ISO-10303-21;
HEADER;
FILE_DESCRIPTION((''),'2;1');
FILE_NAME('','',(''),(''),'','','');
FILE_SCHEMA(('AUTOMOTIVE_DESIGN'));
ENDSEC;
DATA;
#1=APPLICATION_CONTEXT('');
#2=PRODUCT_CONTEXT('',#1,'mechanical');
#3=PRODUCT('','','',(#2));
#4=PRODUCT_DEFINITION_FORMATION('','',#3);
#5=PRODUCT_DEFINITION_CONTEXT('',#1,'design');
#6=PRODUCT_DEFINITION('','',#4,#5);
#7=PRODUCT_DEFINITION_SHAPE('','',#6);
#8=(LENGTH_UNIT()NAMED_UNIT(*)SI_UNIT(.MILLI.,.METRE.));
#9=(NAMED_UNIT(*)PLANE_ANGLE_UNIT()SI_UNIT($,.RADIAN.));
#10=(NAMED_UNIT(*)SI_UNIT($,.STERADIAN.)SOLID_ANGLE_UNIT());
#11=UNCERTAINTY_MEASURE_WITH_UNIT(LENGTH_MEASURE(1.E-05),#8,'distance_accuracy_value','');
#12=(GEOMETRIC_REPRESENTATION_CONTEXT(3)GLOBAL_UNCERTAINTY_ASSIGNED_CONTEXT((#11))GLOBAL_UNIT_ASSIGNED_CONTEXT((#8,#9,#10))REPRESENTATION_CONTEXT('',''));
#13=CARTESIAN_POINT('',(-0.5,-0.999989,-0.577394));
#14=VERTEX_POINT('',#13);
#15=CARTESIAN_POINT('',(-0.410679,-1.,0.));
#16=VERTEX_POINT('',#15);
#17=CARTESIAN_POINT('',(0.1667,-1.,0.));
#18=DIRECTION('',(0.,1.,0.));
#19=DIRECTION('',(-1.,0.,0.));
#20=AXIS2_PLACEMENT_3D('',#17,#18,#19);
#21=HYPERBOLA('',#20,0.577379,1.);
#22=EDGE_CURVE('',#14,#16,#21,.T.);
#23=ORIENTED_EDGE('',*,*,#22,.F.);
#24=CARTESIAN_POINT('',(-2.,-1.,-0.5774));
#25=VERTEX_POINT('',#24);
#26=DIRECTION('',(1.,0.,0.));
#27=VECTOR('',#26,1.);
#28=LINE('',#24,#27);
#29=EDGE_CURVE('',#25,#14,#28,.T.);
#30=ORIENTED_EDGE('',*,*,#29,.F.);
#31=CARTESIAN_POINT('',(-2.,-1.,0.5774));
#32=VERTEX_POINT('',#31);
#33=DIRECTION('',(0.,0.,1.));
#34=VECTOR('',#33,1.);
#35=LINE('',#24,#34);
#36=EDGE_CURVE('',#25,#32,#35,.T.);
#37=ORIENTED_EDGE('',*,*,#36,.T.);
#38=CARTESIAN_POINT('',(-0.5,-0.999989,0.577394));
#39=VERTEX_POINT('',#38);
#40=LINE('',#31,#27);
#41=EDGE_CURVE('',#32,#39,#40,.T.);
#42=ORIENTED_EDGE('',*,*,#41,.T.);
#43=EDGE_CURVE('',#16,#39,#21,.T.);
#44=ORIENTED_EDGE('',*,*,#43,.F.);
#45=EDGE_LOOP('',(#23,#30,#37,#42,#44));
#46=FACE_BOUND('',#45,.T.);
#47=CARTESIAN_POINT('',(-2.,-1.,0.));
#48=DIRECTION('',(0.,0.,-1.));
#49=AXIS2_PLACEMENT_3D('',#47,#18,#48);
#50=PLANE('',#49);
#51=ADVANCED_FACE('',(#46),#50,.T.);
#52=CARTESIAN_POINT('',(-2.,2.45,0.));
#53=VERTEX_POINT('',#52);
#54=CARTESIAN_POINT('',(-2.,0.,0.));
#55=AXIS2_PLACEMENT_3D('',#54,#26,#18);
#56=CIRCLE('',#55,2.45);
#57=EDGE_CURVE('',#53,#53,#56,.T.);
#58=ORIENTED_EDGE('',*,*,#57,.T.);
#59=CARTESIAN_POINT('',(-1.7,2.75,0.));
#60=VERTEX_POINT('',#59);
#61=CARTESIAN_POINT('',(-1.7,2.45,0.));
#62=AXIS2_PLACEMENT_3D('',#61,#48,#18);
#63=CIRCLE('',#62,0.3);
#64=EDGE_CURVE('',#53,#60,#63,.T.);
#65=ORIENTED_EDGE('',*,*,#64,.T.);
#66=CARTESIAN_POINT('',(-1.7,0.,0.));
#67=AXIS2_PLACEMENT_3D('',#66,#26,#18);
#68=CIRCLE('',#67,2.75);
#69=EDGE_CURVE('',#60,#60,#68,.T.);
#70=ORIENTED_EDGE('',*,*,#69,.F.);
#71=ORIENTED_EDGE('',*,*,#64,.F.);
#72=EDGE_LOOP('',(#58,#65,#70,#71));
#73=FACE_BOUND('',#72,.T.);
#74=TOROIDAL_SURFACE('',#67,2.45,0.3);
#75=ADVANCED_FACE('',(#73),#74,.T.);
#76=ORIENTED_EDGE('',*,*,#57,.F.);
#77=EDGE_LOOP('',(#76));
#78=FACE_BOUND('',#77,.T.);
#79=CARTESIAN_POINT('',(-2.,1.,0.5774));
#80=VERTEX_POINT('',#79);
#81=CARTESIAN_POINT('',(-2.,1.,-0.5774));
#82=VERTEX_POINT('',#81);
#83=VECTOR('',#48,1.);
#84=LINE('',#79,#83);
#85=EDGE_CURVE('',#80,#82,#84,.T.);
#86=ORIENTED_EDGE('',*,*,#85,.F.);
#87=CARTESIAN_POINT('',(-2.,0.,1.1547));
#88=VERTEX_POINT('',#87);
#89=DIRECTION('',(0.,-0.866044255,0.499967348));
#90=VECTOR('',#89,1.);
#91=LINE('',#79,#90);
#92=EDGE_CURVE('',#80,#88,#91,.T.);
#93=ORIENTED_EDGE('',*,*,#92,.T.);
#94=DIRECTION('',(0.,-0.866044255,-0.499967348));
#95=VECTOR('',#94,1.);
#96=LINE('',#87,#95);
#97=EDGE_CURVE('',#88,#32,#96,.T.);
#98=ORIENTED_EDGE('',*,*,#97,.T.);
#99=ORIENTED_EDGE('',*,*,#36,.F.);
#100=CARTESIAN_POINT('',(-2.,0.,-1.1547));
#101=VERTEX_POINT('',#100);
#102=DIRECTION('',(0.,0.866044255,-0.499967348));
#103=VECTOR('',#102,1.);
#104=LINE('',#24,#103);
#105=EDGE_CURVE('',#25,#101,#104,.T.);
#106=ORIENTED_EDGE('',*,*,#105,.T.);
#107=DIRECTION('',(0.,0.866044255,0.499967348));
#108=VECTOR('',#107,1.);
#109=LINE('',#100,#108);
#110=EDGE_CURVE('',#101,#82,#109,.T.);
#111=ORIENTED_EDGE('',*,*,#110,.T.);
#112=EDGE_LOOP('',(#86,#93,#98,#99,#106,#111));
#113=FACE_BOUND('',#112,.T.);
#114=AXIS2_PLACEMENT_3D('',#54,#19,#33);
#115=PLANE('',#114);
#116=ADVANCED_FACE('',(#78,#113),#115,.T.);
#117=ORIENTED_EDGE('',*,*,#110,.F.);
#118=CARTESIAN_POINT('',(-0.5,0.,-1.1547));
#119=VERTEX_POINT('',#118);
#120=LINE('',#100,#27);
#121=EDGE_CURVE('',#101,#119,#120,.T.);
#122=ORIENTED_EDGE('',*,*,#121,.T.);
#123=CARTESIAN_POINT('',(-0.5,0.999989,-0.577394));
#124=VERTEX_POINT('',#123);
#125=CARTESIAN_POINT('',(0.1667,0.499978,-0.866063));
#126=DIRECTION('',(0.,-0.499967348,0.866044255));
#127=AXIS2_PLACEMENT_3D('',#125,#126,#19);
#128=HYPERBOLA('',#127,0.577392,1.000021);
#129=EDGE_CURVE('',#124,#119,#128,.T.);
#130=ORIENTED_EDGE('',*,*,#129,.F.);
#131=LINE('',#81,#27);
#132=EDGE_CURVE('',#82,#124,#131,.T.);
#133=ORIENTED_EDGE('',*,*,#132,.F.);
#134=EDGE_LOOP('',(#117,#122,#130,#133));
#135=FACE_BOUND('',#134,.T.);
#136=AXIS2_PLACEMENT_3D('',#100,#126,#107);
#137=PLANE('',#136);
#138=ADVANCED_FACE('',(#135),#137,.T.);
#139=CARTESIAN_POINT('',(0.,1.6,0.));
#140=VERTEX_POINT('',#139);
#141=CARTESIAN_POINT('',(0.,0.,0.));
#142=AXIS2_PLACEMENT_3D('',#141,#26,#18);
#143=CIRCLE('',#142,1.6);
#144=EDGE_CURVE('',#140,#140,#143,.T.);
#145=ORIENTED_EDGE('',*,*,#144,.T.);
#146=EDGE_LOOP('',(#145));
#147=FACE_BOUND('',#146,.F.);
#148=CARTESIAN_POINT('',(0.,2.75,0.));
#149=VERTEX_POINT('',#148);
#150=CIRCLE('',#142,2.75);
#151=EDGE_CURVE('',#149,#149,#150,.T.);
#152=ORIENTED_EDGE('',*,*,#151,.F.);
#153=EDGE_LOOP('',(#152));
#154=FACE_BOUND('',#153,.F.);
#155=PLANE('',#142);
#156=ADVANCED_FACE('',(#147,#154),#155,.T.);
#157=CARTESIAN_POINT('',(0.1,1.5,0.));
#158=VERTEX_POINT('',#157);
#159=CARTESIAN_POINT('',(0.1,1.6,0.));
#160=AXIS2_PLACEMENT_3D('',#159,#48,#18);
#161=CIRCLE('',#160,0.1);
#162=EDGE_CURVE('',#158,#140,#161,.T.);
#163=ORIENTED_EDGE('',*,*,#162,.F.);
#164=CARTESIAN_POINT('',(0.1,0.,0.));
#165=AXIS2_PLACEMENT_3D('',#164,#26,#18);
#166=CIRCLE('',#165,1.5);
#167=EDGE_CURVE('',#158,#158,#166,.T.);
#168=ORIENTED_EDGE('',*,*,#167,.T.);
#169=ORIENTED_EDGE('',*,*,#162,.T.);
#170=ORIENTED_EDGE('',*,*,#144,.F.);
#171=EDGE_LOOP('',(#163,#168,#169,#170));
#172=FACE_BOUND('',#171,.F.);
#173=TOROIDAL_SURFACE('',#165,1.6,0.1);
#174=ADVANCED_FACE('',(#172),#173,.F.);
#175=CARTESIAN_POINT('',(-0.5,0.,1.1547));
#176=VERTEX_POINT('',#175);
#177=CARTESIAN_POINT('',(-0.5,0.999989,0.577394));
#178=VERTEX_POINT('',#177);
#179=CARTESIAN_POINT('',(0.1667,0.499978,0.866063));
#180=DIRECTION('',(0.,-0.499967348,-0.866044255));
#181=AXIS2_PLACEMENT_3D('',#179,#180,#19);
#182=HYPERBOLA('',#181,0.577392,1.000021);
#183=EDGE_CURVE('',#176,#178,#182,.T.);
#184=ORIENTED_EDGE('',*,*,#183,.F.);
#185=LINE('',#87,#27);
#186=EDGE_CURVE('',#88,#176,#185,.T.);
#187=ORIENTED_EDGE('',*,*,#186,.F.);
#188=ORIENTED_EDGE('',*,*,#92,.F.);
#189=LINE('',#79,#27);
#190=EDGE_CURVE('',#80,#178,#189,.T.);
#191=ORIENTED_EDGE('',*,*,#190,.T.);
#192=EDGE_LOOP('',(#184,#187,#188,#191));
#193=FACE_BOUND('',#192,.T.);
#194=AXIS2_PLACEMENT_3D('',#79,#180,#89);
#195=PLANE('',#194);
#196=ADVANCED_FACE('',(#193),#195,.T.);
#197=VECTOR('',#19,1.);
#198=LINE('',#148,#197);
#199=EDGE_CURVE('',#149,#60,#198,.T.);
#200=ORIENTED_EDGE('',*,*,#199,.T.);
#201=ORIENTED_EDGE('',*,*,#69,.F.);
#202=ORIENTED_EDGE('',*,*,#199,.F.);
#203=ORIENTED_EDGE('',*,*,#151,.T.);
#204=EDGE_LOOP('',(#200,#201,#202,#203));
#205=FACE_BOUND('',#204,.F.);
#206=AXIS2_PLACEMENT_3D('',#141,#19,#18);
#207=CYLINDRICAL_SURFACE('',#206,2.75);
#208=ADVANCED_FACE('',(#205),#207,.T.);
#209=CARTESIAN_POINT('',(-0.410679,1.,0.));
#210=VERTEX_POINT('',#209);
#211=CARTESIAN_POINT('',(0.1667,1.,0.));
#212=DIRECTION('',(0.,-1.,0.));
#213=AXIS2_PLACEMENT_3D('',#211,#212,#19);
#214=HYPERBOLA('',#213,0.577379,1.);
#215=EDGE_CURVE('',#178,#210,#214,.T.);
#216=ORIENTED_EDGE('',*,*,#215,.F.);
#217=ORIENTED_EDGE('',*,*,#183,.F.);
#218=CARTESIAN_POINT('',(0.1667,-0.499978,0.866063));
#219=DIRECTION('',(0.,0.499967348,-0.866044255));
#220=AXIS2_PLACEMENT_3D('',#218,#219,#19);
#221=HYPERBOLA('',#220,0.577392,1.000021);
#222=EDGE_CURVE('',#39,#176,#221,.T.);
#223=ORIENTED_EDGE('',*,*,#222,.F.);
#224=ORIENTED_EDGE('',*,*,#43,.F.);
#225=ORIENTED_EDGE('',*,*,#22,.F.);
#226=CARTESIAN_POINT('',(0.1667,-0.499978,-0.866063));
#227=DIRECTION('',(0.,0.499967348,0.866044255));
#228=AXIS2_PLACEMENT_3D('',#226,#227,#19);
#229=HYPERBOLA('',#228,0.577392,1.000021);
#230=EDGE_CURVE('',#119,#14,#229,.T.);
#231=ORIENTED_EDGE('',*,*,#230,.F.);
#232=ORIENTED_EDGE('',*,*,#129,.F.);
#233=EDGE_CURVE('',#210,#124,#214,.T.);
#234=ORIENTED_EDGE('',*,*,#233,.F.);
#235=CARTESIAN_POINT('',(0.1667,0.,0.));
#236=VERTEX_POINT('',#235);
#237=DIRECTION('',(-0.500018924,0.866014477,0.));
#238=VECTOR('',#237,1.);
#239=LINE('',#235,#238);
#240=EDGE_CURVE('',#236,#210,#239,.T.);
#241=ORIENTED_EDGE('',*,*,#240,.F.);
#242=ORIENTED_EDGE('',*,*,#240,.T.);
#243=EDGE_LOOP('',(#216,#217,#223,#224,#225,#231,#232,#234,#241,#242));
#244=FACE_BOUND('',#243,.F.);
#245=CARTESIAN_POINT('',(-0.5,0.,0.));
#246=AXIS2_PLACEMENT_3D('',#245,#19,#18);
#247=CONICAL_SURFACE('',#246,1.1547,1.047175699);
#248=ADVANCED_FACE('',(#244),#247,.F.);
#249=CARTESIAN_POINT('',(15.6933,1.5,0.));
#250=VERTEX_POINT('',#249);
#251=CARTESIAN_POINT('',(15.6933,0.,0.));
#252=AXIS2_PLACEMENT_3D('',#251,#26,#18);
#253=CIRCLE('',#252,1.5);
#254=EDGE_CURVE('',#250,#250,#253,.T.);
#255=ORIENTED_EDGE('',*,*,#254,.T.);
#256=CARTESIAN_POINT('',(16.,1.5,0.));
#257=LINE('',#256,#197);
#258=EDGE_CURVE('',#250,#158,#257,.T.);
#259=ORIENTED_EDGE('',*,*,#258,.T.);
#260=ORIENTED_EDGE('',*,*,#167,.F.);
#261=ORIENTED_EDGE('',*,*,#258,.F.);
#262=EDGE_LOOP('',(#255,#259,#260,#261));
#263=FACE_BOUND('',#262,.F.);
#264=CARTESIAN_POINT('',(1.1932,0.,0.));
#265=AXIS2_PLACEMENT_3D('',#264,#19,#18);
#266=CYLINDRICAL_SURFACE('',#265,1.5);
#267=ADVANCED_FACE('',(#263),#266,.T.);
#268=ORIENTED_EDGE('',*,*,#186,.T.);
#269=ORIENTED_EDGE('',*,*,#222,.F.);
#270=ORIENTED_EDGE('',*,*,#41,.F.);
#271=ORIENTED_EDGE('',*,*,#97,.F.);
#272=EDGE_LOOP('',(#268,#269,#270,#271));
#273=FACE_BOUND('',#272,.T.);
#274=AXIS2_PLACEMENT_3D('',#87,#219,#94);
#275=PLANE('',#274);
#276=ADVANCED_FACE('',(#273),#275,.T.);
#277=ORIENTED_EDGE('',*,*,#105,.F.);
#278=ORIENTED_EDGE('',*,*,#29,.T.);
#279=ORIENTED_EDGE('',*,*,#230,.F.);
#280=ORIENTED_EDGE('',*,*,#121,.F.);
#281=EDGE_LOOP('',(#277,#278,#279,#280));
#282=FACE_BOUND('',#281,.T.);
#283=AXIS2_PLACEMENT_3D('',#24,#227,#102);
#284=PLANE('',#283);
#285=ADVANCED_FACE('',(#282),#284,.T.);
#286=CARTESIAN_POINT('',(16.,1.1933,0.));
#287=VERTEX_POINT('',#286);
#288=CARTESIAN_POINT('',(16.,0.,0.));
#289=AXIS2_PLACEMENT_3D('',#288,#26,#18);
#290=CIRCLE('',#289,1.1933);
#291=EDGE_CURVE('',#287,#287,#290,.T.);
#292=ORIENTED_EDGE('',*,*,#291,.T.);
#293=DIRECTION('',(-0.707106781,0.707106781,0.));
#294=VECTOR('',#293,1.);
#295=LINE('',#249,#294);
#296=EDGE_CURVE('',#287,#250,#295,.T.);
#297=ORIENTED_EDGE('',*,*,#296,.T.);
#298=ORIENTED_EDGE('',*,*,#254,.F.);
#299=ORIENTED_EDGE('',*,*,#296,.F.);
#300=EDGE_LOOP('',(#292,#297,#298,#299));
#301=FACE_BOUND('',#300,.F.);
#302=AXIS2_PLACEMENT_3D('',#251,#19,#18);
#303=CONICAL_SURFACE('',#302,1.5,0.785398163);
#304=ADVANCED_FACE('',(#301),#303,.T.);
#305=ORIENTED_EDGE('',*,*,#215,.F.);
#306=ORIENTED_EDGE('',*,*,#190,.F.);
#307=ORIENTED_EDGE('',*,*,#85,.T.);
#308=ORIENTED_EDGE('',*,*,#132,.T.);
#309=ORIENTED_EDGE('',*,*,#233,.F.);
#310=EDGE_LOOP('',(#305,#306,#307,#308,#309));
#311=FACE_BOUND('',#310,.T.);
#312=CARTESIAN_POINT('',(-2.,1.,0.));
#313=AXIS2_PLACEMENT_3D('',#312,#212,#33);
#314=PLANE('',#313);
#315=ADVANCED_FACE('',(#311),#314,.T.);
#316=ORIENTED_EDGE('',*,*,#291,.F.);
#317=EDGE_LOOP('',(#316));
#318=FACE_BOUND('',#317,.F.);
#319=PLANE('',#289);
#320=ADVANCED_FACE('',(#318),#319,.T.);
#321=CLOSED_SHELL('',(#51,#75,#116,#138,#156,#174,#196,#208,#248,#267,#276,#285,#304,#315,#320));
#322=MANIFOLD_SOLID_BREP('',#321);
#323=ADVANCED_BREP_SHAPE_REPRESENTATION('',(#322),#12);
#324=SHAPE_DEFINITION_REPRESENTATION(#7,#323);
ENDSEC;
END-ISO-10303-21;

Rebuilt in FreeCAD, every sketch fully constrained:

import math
import FreeCAD as App
import Part
import Sketcher
from FreeCAD import Vector
Q = App.Units.Quantity


def edges_at(feature, points):
    """Names of the edges that pass closest to the given points."""
    edges = feature.Shape.Edges
    near = lambda p: min(range(len(edges)), key=lambda i: edges[i].distToShape(Part.Vertex(*p))[0])
    return sorted({f"Edge{near(p) + 1}" for p in points})

doc = App.newDocument("Part")
body = doc.addObject("PartDesign::Body", "Body")

sketch1 = doc.addObject("Sketcher::SketchObject", "Sketch")
body.addObject(sketch1)
sketch1.AttachmentSupport = (doc.XY_Plane, [""])
sketch1.MapMode = "FlatFace"
sketch1.addGeometry([
    Part.LineSegment(Vector(0.2, 0, 0), Vector(16, 0, 0)),
    Part.LineSegment(Vector(16, 0, 0), Vector(16, 1.5, 0)),
    Part.LineSegment(Vector(16, 1.5, 0), Vector(0, 1.5, 0)),
    Part.LineSegment(Vector(0, 1.5, 0), Vector(0, 2.8, 0)),
    Part.LineSegment(Vector(0, 2.8, 0), Vector(-2, 2.8, 0)),
    Part.LineSegment(Vector(-2, 2.8, 0), Vector(-2, 1.2, 0)),
    Part.LineSegment(Vector(-2, 1.2, 0), Vector(-0.5, 1.2, 0)),
    Part.LineSegment(Vector(-0.5, 1.2, 0), Vector(0.2, 0, 0)),
], False)
sketch1.addConstraint([
    Sketcher.Constraint("Coincident", 0, 2, 1, 1),
    Sketcher.Constraint("Coincident", 1, 2, 2, 1),
    Sketcher.Constraint("Coincident", 2, 2, 3, 1),
    Sketcher.Constraint("Coincident", 3, 2, 4, 1),
    Sketcher.Constraint("Coincident", 4, 2, 5, 1),
    Sketcher.Constraint("Coincident", 5, 2, 6, 1),
    Sketcher.Constraint("Coincident", 6, 2, 7, 1),
    Sketcher.Constraint("Coincident", 7, 2, 0, 1),
    Sketcher.Constraint("Horizontal", 0),
    Sketcher.Constraint("Vertical", 1),
    Sketcher.Constraint("Horizontal", 2),
    Sketcher.Constraint("Vertical", 3),
    Sketcher.Constraint("Horizontal", 4),
    Sketcher.Constraint("Vertical", 5),
    Sketcher.Constraint("Horizontal", 6),
    Sketcher.Constraint("PointOnObject", 0, 2, -1),
    Sketcher.Constraint("PointOnObject", 2, 2, -2),
    Sketcher.Constraint("Equal", 6, 1),
    Sketcher.Constraint("DistanceX", 2, 2, 2, 1, Q("16 mm")),
    Sketcher.Constraint("DistanceX", 4, 2, 4, 1, Q("2 mm")),
    Sketcher.Constraint("DistanceX", 6, 1, 6, 2, Q("1.5 mm")),
    Sketcher.Constraint("DistanceY", 3, 1, 3, 2, Q("1.25 mm")),
    Sketcher.Constraint("DistanceX", 0, 1, 0, 2, Q("15.8333 mm")),
    Sketcher.Constraint("DistanceY", 5, 2, 5, 1, Q("1.5953 mm")),
])
revolution = doc.addObject("PartDesign::Revolution", "Revolution")
body.addObject(revolution)
revolution.Profile = sketch1
revolution.ReferenceAxis = (sketch1, ["H_Axis"])
revolution.Angle = 360

sketch2 = doc.addObject("Sketcher::SketchObject", "Sketch001")
body.addObject(sketch2)
sketch2.AttachmentSupport = (doc.YZ_Plane, [""])
sketch2.MapMode = "FlatFace"
sketch2.AttachmentOffset = App.Placement(Vector(0, 0, -2), App.Rotation())
sketch2.addGeometry([
    Part.LineSegment(Vector(1, 0.6, 0), Vector(0, 1.2, 0)),
    Part.ArcOfCircle(Part.Circle(Vector(0, 0, 0), Vector(0, 0, 1), 1.2), math.radians(30), math.radians(90)),
    Part.ArcOfCircle(Part.Circle(Vector(0, 0, 0), Vector(0, 0, 1), 1.2), math.radians(90), math.radians(150)),
    Part.LineSegment(Vector(0, 1.2, 0), Vector(-1, 0.6, 0)),
    Part.ArcOfCircle(Part.Circle(Vector(0, 0, 0), Vector(0, 0, 1), 1.2), math.radians(-30), math.radians(30)),
    Part.LineSegment(Vector(1, 0.6, 0), Vector(1, -0.6, 0)),
    Part.LineSegment(Vector(-1, 0.6, 0), Vector(-1, -0.6, 0)),
    Part.ArcOfCircle(Part.Circle(Vector(0, 0, 0), Vector(0, 0, 1), 1.2), math.radians(150), math.radians(210)),
    Part.LineSegment(Vector(-1, -0.6, 0), Vector(0, -1.2, 0)),
    Part.ArcOfCircle(Part.Circle(Vector(0, 0, 0), Vector(0, 0, 1), 1.2), math.radians(-150), math.radians(-90)),
    Part.ArcOfCircle(Part.Circle(Vector(0, 0, 0), Vector(0, 0, 1), 1.2), math.radians(-90), math.radians(-30)),
    Part.LineSegment(Vector(0, -1.2, 0), Vector(1, -0.6, 0)),
], False)
sketch2.addConstraint([
    Sketcher.Constraint("Coincident", 0, 1, 1, 1),
    Sketcher.Constraint("Coincident", 1, 2, 0, 2),
    Sketcher.Constraint("Coincident", 2, 1, 3, 1),
    Sketcher.Constraint("Coincident", 3, 2, 2, 2),
    Sketcher.Constraint("Coincident", 4, 1, 5, 2),
    Sketcher.Constraint("Coincident", 5, 1, 4, 2),
    Sketcher.Constraint("Coincident", 6, 1, 7, 1),
    Sketcher.Constraint("Coincident", 7, 2, 6, 2),
    Sketcher.Constraint("Coincident", 8, 1, 9, 1),
    Sketcher.Constraint("Coincident", 9, 2, 8, 2),
    Sketcher.Constraint("Coincident", 10, 1, 11, 1),
    Sketcher.Constraint("Coincident", 11, 2, 10, 2),
    Sketcher.Constraint("Vertical", 5),
    Sketcher.Constraint("Vertical", 6),
    Sketcher.Constraint("Coincident", 1, 3, -1, 1),
    Sketcher.Constraint("Coincident", 2, 3, -1, 1),
    Sketcher.Constraint("Coincident", 4, 3, -1, 1),
    Sketcher.Constraint("Coincident", 7, 3, -1, 1),
    Sketcher.Constraint("Coincident", 9, 3, -1, 1),
    Sketcher.Constraint("Coincident", 10, 3, -1, 1),
    Sketcher.Constraint("Coincident", 2, 1, 1, 2),
    Sketcher.Constraint("Coincident", 5, 1, 0, 1),
    Sketcher.Constraint("Coincident", 6, 1, 3, 2),
    Sketcher.Constraint("Coincident", 8, 1, 7, 2),
    Sketcher.Constraint("Coincident", 10, 1, 9, 2),
    Sketcher.Constraint("PointOnObject", 1, 2, -2),
    Sketcher.Constraint("PointOnObject", 9, 2, -2),
    Sketcher.Constraint("Parallel", 0, 8),
    Sketcher.Constraint("Parallel", 3, 11),
    Sketcher.Constraint("DistanceX", -1, 1, 0, 1, Q("1 mm")),
    Sketcher.Constraint("Radius", 1, Q("1.1547 mm")),
])
pad1 = doc.addObject("PartDesign::Pad", "Pad")
body.addObject(pad1)
pad1.Profile = sketch2
pad1.Type = "UpToFirst"
doc.recompute()

fillet = doc.addObject("PartDesign::Fillet", "Fillet")
body.addObject(fillet)
fillet.Base = (pad1, edges_at(pad1, [(-2, -2.75, 0)]))
fillet.Radius = 0.3
doc.recompute()

chamfer = doc.addObject("PartDesign::Chamfer", "Chamfer")
body.addObject(chamfer)
chamfer.Base = (fillet, edges_at(fillet, [(16, -1.5, 0)]))
chamfer.ChamferType = "Two distances"
chamfer.Size = 0.3067
chamfer.Size2 = 0.3067
doc.recompute()

fillet2 = doc.addObject("PartDesign::Fillet", "Fillet001")
body.addObject(fillet2)
fillet2.Base = (chamfer, edges_at(chamfer, [(0, -1.5, 0)]))
fillet2.Radius = 0.1

doc.recompute()
